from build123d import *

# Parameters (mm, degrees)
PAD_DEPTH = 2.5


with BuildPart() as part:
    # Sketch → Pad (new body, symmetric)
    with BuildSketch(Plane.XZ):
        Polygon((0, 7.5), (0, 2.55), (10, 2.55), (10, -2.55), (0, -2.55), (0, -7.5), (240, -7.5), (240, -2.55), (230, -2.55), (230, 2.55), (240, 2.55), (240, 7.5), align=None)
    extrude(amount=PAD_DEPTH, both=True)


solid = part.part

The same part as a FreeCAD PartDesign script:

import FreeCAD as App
import Part
import Sketcher

V = App.Vector


def add_polygon(sketch, points):
    """Adds a closed chain of lines whose ends are joined by coincident constraints."""
    first, n = sketch.GeometryCount, len(points)
    for a, b in zip(points, points[1:] + points[:1]):
        sketch.addGeometry(Part.LineSegment(App.Vector(*a, 0), App.Vector(*b, 0)), False)
    for i in range(n):
        sketch.addConstraint(Sketcher.Constraint("Coincident", first + i, 2, first + (i + 1) % n, 1))

doc = App.newDocument("Part")
body = doc.addObject("PartDesign::Body", "Body")

sketch1 = doc.addObject("Sketcher::SketchObject", "Sketch")
body.addObject(sketch1)
sketch1.AttachmentSupport = (doc.XZ_Plane, [""])
sketch1.MapMode = "FlatFace"
add_polygon(sketch1, [(0, 7.5), (0, 2.5), (10, 2.5), (10, -2.5), (0, -2.5), (0, -7.5), (240, -7.5), (240, -2.5), (230, -2.5), (230, 2.5), (240, 2.5), (240, 7.5)])
sketch1.addConstraint(Sketcher.Constraint("Vertical", 0))
sketch1.addConstraint(Sketcher.Constraint("Horizontal", 1))
sketch1.addConstraint(Sketcher.Constraint("Vertical", 2))
sketch1.addConstraint(Sketcher.Constraint("Horizontal", 3))
sketch1.addConstraint(Sketcher.Constraint("Vertical", 4))
sketch1.addConstraint(Sketcher.Constraint("Horizontal", 5))
sketch1.addConstraint(Sketcher.Constraint("Vertical", 6))
sketch1.addConstraint(Sketcher.Constraint("Horizontal", 7))
sketch1.addConstraint(Sketcher.Constraint("Vertical", 8))
sketch1.addConstraint(Sketcher.Constraint("Horizontal", 9))
sketch1.addConstraint(Sketcher.Constraint("Vertical", 10))
sketch1.addConstraint(Sketcher.Constraint("Horizontal", 11))
sketch1.addConstraint(Sketcher.Constraint("Symmetric", 0, 2, 3, 2, -1, 1))
sketch1.addConstraint(Sketcher.Constraint("Symmetric", 6, 2, 9, 2, -1))
sketch1.addConstraint(Sketcher.Constraint("Symmetric", 4, 2, 11, 2, -1))
sketch1.addConstraint(Sketcher.Constraint("Horizontal", 3, 2, 6, 2))
sketch1.addConstraint(Sketcher.Constraint("Equal", 3, 7))
sketch1.addConstraint(Sketcher.Constraint("DistanceX", 1, 1, 1, 2, 10.0))
sketch1.addConstraint(Sketcher.Constraint("DistanceX", 5, 1, 5, 2, 240.0))
sketch1.addConstraint(Sketcher.Constraint("DistanceY", 2, 2, 2, 1, 5.1))
sketch1.addConstraint(Sketcher.Constraint("DistanceY", 5, 2, 10, 2, 15.0))
pad1 = doc.addObject("PartDesign::Pad", "Pad")
body.addObject(pad1)
pad1.Profile = sketch1
pad1.Length = 5
pad1.Midplane = True

doc.recompute()
